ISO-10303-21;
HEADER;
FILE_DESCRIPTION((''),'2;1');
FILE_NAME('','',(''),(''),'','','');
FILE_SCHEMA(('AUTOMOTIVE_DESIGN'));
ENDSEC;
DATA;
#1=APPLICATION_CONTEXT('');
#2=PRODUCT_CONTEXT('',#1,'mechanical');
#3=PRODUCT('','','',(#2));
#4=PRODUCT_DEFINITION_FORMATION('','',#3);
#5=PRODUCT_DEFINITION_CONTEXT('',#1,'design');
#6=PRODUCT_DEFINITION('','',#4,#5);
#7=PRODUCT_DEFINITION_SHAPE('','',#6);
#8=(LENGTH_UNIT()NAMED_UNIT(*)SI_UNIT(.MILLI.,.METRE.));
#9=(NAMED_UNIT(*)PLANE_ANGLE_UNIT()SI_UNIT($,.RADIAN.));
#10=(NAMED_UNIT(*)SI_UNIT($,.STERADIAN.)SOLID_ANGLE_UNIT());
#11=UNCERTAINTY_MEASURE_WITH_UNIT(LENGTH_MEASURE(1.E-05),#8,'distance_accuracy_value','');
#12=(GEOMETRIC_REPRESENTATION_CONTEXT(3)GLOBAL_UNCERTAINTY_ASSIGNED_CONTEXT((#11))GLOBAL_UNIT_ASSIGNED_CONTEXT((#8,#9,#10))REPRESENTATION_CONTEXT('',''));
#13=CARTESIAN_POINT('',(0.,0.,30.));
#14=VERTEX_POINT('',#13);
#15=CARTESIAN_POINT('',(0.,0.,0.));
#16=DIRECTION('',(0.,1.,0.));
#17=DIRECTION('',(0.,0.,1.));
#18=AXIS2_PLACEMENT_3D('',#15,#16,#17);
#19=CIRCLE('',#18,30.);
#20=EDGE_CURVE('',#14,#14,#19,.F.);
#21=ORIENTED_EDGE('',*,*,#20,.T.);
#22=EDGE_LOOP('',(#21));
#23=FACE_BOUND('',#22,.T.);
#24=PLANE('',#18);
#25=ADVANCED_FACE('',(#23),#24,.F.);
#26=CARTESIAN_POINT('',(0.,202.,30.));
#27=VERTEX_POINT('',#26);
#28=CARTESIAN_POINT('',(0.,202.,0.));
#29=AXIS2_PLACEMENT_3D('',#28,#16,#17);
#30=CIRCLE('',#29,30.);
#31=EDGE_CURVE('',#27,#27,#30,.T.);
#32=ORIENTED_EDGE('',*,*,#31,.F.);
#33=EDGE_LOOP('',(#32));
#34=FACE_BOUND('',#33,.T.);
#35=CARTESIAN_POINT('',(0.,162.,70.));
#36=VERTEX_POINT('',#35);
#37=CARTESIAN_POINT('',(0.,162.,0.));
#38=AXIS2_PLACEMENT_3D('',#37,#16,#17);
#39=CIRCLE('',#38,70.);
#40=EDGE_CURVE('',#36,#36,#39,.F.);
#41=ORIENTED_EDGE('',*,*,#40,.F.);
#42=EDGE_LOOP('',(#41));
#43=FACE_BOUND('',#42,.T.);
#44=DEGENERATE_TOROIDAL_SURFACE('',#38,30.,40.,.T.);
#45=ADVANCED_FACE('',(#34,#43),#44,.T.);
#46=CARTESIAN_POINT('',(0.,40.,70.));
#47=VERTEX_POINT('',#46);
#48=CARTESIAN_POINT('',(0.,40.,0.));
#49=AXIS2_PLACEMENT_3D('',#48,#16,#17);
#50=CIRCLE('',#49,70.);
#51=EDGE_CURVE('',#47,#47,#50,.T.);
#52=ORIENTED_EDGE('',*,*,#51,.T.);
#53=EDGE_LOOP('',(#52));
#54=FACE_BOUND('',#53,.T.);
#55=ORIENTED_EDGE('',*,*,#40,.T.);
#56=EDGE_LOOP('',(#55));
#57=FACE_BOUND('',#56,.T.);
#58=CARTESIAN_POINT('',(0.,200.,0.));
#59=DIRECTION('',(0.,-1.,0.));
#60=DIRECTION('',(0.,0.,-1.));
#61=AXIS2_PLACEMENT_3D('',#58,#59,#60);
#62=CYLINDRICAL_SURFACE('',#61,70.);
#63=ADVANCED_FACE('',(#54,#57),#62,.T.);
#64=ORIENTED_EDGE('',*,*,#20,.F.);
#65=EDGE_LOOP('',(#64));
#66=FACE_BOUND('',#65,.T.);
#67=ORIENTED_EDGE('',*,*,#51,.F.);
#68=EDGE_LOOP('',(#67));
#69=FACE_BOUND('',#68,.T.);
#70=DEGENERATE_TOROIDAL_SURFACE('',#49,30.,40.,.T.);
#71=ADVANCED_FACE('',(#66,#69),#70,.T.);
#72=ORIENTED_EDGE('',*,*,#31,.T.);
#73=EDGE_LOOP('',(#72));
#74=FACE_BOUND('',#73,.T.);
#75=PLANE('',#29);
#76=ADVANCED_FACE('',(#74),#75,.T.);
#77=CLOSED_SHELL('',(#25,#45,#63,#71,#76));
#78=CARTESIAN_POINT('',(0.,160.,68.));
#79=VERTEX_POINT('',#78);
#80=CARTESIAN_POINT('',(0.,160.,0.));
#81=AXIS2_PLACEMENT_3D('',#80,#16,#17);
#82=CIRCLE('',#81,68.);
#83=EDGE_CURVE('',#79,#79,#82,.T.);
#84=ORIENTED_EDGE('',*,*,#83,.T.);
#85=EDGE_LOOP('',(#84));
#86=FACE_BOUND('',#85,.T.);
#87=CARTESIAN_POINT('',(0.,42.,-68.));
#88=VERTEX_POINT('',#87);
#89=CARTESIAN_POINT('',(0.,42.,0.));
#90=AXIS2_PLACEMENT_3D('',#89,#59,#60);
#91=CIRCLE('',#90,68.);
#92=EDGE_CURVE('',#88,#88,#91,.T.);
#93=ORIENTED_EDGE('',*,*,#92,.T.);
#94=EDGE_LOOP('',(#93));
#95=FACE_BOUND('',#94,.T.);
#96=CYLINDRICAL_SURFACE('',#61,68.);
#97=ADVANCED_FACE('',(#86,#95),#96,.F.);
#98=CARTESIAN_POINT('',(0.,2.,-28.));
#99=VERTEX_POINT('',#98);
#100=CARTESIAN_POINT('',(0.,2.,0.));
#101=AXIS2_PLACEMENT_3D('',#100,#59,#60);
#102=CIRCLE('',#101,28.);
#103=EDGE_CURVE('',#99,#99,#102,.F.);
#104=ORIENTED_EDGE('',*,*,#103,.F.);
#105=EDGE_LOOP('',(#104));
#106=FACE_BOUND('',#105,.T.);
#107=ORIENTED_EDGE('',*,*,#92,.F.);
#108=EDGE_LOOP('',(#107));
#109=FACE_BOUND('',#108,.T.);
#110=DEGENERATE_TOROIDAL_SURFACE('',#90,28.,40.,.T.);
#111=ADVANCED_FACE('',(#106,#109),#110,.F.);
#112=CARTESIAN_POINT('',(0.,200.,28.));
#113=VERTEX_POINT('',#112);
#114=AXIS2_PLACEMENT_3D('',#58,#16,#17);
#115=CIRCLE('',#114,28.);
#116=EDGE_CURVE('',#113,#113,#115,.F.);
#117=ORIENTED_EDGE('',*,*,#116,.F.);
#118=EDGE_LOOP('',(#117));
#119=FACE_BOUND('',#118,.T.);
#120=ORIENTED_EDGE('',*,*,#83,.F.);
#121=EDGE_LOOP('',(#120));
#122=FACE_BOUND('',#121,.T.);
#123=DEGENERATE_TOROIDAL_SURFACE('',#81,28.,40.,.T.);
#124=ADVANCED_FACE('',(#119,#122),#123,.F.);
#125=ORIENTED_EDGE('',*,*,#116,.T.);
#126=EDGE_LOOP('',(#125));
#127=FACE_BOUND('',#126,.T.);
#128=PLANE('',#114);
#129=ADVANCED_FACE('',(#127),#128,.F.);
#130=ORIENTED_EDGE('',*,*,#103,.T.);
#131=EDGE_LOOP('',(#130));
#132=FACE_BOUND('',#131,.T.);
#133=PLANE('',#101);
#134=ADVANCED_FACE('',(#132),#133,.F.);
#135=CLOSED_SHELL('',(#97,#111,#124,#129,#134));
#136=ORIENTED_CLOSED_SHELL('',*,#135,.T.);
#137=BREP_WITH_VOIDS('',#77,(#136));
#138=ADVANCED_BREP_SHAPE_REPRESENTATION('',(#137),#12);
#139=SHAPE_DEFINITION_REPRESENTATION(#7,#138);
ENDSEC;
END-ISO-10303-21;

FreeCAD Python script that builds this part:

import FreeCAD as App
import Part
import Sketcher

V = App.Vector
Q = App.Units.Quantity


def edges_at(feature, points):
    """Names of the edges that pass closest to the given points."""
    edges = feature.Shape.Edges
    near = lambda p: min(range(len(edges)), key=lambda i: edges[i].distToShape(Part.Vertex(*p))[0])
    return sorted({f"Edge{near(p) + 1}" for p in points})

doc = App.newDocument("Part")
params = doc.addObject("Spreadsheet::Sheet", "Params")
for row, (alias, value) in enumerate([
    ("sketch1_diameter", "140 mm"),
    ("sketch1_diameter2", "136 mm"),
    ("pad1_length", "200 mm"),
    ("sketch2_diameter", "140 mm"),
    ("pad2_length", "2 mm"),
    ("sketch3_diameter", "140 mm"),
    ("pad3_length", "2 mm"),
    ("fillet_radius", "40 mm"),
], start=1):
    params.set(f"A{row}", alias)
    params.set(f"B{row}", "=" + value)
    params.setAlias(f"B{row}", alias)

body = doc.addObject("PartDesign::Body", "Body")

# Sketch on XZ plane
sketch1 = doc.addObject("Sketcher::SketchObject", "Sketch")
body.addObject(sketch1)
sketch1.AttachmentSupport = (doc.XZ_Plane, [""])
sketch1.MapMode = "FlatFace"
sketch1.addGeometry(Part.Circle(V(0, 0, 0), V(0, 0, 1), 70), False)
sketch1.addGeometry(Part.Circle(V(0, 0, 0), V(0, 0, 1), 68), False)
sketch1.addConstraint(Sketcher.Constraint("Coincident", 0, 3, -1, 1))
sketch1.addConstraint(Sketcher.Constraint("Coincident", 1, 3, -1, 1))
sketch1.addConstraint(Sketcher.Constraint("Diameter", 0, Q("140 mm")))
sketch1.addConstraint(Sketcher.Constraint("Diameter", 1, Q("136 mm")))
sketch1.setExpression("Constraints[2]", "Params.sketch1_diameter")
sketch1.setExpression("Constraints[3]", "Params.sketch1_diameter2")
pad1 = doc.addObject("PartDesign::Pad", "Pad")
body.addObject(pad1)
pad1.Profile = sketch1
pad1.setExpression("Length", "Params.pad1_length")
pad1.Reversed = True

# Sketch on XZ plane
sketch2 = doc.addObject("Sketcher::SketchObject", "Sketch001")
body.addObject(sketch2)
sketch2.AttachmentSupport = (doc.XZ_Plane, [""])
sketch2.MapMode = "FlatFace"
sketch2.addGeometry(Part.Circle(V(0, 0, 0), V(0, 0, 1), 70), False)
sketch2.addConstraint(Sketcher.Constraint("Coincident", 0, 3, -1, 1))
sketch2.addConstraint(Sketcher.Constraint("Diameter", 0, Q("140 mm")))
sketch2.setExpression("Constraints[1]", "Params.sketch2_diameter")
pad2 = doc.addObject("PartDesign::Pad", "Pad001")
body.addObject(pad2)
pad2.Profile = sketch2
pad2.setExpression("Length", "Params.pad2_length")
pad2.Reversed = True

# Sketch on XZ plane
sketch3 = doc.addObject("Sketcher::SketchObject", "Sketch002")
body.addObject(sketch3)
sketch3.AttachmentSupport = (doc.XZ_Plane, [""])
sketch3.MapMode = "FlatFace"
sketch3.AttachmentOffset = App.Placement(V(0, 0, -200), App.Rotation())
sketch3.addGeometry(Part.Circle(V(0, 0, 0), V(0, 0, 1), 70), False)
sketch3.addConstraint(Sketcher.Constraint("Coincident", 0, 3, -1, 1))
sketch3.addConstraint(Sketcher.Constraint("Diameter", 0, Q("140 mm")))
sketch3.setExpression("Constraints[1]", "Params.sketch3_diameter")
pad3 = doc.addObject("PartDesign::Pad", "Pad002")
body.addObject(pad3)
pad3.Profile = sketch3
pad3.setExpression("Length", "Params.pad3_length")
pad3.Reversed = True
doc.recompute()

fillet = doc.addObject("PartDesign::Fillet", "Fillet")
body.addObject(fillet)
fillet.Base = (pad3, edges_at(pad3, [
    (0, 2, -68),
    (0, 200, -68),
    (0, 202, -70),
    (0, 0, -70),
]))
fillet.setExpression("Radius", "Params.fillet_radius")

doc.recompute()
